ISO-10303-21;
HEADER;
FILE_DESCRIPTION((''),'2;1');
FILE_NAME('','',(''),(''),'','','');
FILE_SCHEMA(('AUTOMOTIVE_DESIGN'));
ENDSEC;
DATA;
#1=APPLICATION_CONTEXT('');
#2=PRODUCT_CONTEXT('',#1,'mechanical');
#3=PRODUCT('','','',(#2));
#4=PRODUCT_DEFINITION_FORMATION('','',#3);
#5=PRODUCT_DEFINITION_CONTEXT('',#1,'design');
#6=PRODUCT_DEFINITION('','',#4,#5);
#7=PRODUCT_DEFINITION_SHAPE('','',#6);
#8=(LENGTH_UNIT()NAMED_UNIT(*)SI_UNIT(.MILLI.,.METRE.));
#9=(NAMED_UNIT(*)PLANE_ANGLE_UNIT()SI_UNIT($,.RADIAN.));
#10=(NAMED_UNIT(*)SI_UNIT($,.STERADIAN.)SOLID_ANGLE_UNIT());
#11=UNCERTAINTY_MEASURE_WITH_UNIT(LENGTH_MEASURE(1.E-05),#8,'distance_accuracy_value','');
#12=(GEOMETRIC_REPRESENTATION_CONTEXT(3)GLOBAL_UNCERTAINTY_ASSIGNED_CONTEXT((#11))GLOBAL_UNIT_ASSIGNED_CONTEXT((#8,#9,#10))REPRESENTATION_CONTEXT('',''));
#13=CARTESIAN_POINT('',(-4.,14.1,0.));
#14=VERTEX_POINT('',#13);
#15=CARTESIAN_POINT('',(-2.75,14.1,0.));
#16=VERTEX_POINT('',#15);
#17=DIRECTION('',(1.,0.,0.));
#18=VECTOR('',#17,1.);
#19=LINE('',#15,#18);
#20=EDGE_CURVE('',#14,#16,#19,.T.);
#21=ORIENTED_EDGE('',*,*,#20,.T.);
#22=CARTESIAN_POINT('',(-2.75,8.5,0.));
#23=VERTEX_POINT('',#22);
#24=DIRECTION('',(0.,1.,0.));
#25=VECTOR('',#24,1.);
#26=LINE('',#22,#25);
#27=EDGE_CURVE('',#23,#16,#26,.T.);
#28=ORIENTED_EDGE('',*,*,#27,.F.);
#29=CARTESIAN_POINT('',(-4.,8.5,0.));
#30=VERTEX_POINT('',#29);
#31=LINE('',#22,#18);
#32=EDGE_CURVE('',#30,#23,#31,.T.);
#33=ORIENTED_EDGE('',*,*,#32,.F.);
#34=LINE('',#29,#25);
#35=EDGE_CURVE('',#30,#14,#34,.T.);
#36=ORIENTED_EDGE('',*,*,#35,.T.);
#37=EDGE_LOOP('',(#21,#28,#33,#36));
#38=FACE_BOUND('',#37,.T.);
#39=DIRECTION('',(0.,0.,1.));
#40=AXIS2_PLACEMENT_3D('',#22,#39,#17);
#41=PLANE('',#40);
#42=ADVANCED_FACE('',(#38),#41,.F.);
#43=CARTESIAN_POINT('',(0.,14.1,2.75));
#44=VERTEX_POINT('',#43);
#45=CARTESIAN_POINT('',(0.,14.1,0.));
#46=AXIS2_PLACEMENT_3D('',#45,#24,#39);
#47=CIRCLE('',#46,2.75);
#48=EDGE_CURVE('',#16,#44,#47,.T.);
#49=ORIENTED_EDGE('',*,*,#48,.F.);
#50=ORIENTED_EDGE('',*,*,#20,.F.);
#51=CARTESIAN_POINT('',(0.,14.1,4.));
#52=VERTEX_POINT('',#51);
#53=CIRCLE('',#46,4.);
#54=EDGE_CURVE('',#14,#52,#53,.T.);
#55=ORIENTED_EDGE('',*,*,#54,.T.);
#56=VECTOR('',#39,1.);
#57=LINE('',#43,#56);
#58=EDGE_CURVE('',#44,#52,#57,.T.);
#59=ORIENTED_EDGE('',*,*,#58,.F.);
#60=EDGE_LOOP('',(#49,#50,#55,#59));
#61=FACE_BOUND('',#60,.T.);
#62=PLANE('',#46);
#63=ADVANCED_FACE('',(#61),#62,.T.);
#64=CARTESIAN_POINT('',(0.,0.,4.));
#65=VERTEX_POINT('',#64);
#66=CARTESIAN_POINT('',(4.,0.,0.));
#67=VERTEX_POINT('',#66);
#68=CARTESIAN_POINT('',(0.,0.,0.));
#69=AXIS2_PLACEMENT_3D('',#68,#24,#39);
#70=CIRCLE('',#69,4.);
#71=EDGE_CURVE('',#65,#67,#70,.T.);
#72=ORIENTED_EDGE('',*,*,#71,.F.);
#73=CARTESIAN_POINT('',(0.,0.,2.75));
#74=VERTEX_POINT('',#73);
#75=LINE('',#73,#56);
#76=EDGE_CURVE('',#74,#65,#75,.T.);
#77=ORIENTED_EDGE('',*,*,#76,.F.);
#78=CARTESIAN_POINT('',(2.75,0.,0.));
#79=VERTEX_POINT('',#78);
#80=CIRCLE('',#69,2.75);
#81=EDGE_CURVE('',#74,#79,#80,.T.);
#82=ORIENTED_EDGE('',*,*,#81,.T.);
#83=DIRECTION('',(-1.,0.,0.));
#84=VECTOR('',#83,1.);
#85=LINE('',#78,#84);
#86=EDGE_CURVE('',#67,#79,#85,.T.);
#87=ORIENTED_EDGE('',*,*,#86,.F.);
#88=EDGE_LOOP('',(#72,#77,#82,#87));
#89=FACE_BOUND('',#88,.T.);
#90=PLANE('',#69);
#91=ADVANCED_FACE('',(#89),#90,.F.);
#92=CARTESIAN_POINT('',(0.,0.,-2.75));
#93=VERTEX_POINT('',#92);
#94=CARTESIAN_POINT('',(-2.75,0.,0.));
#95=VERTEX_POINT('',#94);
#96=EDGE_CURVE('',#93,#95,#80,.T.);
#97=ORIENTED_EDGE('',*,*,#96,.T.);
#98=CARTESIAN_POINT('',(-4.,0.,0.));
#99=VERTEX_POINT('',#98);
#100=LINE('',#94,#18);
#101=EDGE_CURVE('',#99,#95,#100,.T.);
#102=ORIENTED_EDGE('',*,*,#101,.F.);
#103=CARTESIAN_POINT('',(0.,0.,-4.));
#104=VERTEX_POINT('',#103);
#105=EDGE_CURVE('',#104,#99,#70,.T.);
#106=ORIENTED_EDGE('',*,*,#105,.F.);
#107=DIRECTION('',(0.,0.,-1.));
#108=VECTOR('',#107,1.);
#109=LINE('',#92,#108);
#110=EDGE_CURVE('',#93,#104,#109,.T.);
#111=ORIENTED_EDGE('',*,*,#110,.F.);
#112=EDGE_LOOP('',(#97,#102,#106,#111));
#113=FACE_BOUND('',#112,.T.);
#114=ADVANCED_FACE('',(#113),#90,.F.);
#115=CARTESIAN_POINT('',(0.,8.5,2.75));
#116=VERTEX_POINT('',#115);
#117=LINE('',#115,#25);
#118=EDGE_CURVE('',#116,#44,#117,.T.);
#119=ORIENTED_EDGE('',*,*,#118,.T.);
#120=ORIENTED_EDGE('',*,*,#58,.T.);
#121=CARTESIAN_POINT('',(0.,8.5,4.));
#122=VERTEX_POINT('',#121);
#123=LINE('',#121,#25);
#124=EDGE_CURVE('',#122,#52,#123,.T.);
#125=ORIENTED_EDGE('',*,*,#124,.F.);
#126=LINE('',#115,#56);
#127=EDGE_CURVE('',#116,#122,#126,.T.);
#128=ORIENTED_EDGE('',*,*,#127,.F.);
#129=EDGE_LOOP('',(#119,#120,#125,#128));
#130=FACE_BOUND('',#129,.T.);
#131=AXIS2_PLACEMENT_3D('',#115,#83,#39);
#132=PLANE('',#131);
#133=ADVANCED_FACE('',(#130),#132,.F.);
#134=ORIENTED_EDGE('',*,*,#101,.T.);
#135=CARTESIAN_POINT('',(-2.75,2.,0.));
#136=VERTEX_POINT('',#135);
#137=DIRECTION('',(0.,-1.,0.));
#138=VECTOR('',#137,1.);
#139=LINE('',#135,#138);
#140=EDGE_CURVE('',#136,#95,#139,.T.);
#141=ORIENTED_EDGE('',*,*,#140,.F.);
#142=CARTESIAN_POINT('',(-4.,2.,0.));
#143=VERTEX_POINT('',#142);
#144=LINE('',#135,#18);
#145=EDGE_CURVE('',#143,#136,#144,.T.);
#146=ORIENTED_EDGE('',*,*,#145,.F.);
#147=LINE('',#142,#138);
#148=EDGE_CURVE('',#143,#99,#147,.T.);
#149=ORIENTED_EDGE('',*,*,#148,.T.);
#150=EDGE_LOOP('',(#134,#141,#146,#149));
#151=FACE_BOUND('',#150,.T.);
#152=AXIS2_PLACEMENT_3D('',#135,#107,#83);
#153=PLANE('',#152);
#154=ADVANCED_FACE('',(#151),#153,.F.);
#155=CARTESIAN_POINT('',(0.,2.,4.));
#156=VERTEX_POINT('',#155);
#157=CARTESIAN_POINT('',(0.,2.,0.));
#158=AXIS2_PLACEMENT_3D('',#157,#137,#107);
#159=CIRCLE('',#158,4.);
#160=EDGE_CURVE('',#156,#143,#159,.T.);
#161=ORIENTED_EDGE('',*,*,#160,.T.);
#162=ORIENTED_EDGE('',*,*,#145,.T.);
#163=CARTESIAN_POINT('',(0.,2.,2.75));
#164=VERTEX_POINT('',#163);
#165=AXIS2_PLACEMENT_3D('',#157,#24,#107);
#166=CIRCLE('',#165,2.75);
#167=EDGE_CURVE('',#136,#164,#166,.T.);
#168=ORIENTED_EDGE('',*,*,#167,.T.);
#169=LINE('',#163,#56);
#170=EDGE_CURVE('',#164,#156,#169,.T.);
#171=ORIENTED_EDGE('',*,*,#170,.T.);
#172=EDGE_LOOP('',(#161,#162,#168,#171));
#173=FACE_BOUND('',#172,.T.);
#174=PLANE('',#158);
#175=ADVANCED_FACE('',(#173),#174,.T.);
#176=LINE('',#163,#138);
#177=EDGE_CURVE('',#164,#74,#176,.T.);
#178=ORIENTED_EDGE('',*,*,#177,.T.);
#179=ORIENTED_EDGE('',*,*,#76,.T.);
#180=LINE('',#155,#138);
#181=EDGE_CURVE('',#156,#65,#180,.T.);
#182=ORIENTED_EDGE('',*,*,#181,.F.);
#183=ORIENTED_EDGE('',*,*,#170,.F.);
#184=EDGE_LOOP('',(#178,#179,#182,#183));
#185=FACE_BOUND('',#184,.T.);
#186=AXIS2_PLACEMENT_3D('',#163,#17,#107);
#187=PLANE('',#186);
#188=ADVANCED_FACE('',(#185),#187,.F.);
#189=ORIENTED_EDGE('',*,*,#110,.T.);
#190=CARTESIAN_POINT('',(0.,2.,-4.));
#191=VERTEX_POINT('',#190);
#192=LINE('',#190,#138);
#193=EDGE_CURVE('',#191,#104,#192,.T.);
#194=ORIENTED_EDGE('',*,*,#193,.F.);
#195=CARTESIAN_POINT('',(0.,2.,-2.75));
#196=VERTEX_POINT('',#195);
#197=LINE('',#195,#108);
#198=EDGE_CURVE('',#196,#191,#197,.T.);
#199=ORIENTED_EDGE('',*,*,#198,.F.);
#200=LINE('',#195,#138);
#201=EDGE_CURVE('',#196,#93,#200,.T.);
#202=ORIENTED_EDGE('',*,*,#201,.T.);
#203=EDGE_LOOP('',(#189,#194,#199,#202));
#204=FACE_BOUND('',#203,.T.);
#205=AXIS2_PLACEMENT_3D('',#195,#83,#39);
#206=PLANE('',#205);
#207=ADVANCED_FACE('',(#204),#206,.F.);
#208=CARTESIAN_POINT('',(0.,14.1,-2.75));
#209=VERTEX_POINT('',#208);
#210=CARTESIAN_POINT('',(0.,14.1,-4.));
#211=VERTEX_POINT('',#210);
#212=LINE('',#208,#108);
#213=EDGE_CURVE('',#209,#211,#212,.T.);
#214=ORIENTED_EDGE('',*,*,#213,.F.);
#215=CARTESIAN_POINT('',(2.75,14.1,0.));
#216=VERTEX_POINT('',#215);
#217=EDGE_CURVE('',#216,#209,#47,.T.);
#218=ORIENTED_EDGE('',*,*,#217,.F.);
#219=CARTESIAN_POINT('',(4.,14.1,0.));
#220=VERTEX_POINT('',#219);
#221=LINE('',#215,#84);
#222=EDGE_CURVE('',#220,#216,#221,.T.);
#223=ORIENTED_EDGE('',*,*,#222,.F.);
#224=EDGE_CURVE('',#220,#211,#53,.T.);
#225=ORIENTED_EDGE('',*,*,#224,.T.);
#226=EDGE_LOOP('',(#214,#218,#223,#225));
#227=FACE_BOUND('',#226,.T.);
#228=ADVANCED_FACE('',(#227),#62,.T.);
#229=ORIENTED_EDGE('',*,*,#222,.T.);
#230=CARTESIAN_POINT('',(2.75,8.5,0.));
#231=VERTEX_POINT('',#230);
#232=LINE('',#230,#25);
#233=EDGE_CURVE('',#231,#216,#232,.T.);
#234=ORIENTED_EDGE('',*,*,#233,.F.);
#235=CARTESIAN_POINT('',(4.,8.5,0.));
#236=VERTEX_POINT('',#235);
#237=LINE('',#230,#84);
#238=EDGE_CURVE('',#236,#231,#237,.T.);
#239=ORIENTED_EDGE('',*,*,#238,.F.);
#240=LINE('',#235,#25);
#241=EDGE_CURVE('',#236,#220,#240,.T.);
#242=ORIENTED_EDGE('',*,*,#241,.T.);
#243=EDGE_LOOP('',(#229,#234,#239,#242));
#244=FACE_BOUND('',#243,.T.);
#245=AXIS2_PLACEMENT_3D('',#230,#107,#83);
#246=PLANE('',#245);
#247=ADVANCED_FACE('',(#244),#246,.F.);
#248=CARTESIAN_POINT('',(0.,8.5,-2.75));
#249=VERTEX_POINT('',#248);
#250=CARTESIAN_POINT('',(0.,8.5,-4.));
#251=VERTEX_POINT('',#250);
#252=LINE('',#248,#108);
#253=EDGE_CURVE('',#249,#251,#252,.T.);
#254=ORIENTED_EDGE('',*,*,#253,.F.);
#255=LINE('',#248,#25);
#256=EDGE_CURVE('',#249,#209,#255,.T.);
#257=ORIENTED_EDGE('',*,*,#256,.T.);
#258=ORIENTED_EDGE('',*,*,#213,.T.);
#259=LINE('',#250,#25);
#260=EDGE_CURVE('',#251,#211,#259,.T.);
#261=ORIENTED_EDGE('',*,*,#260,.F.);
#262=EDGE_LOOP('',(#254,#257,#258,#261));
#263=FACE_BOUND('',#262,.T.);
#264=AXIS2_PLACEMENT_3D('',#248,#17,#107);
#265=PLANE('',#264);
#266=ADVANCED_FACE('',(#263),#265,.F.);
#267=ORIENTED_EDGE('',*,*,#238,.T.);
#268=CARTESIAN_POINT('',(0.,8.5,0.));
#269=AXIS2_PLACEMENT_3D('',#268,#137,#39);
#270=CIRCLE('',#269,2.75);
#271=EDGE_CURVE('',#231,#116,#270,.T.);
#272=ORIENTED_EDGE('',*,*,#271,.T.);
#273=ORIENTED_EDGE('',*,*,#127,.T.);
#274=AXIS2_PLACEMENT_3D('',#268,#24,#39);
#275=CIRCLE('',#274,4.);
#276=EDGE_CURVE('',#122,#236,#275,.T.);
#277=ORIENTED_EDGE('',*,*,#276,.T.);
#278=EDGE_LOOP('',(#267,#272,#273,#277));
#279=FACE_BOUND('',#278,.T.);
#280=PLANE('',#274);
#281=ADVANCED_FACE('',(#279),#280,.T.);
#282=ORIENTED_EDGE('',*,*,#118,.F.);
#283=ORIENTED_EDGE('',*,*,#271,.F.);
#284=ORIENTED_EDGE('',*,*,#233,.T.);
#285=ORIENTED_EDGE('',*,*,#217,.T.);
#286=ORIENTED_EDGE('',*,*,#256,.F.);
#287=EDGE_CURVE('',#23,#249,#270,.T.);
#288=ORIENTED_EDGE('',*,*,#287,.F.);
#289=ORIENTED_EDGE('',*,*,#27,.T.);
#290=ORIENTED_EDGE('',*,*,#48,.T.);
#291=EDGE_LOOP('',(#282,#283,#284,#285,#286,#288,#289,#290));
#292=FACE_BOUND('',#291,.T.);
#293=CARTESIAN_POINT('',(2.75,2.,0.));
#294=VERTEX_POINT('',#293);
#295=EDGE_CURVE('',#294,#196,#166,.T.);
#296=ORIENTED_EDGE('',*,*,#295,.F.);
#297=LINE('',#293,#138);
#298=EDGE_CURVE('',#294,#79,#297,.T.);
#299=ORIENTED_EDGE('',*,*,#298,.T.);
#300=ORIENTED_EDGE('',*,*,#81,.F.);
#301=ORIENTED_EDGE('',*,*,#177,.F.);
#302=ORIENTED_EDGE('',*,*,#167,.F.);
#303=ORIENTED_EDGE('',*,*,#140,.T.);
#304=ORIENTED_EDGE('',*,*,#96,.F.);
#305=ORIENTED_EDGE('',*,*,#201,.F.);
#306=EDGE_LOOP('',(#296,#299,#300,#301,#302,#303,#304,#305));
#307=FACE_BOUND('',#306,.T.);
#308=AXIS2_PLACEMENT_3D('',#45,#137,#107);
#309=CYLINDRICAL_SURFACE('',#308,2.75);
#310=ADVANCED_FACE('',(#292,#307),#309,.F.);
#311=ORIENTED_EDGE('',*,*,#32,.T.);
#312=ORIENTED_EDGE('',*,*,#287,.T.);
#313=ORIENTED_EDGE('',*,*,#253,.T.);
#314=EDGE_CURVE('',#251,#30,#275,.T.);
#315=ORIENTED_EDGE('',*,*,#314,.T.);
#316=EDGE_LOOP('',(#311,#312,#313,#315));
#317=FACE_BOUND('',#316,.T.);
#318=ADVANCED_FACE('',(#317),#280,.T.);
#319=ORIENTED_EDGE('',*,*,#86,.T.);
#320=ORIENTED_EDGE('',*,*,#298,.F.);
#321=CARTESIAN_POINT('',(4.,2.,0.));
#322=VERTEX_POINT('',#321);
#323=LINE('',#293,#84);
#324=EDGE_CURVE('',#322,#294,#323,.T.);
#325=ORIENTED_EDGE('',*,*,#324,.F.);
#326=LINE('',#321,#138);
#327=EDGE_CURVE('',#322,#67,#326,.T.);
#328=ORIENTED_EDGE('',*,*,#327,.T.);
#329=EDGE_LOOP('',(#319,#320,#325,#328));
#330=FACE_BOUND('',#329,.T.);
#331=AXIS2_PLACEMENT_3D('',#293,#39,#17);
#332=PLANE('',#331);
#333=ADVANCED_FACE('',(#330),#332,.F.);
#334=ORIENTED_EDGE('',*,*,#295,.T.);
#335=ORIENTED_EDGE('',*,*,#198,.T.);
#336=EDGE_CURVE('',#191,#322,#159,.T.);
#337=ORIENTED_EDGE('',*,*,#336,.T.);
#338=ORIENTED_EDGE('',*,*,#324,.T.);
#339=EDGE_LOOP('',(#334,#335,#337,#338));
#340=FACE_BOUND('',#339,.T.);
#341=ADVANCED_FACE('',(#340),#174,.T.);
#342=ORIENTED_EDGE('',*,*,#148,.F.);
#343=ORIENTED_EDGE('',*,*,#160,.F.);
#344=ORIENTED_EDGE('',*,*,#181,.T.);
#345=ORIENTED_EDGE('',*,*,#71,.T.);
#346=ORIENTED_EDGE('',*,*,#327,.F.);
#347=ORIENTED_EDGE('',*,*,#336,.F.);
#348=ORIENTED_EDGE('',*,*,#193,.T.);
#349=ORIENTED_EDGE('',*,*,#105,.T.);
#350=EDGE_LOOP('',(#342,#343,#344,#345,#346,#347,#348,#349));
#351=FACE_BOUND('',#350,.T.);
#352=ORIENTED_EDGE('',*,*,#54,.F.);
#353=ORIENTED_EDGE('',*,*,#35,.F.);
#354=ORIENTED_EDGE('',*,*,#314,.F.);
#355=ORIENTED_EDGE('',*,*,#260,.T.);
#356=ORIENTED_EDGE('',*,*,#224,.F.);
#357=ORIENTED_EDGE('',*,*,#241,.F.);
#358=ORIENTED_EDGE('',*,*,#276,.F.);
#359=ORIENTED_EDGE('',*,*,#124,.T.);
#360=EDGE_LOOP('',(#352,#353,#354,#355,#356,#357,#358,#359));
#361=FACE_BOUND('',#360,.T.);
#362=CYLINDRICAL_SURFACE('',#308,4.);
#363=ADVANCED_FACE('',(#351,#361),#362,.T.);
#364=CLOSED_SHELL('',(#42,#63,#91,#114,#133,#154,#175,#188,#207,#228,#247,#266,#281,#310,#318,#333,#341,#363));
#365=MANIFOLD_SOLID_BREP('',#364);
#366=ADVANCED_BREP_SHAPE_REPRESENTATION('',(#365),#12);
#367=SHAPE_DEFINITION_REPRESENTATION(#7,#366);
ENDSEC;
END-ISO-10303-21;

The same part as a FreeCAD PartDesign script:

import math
import FreeCAD as App
import Part
import Sketcher

V = App.Vector

doc = App.newDocument("Part")
body = doc.addObject("PartDesign::Body", "Body")

sketch1 = doc.addObject("Sketcher::SketchObject", "Sketch")
body.addObject(sketch1)
sketch1.AttachmentSupport = (doc.XZ_Plane, [""])
sketch1.MapMode = "FlatFace"
sketch1.addGeometry([
    Part.Circle(V(0, 0, 0), V(0, 0, 1), 4),
    Part.Circle(V(0, 0, 0), V(0, 0, 1), 2.8),
], False)
sketch1.addConstraint([
    Sketcher.Constraint("Coincident", 0, 3, -1, 1),
    Sketcher.Constraint("Coincident", 1, 3, -1, 1),
    Sketcher.Constraint("Diameter", 0, 8.0),
    Sketcher.Constraint("Diameter", 1, 5.5),
])
pad1 = doc.addObject("PartDesign::Pad", "Pad")
body.addObject(pad1)
pad1.Profile = sketch1
pad1.Length = 14.1
pad1.Reversed = True

sketch2 = doc.addObject("Sketcher::SketchObject", "Sketch001")
body.addObject(sketch2)
sketch2.AttachmentSupport = (doc.XZ_Plane, [""])
sketch2.MapMode = "FlatFace"
sketch2.AttachmentOffset = App.Placement(V(0, 0, -14.1), App.Rotation())
sketch2.addGeometry([
    Part.LineSegment(V(0, -2.8, 0), V(0, -4, 0)),
    Part.ArcOfCircle(Part.Circle(V(0, 0, 0), V(0, 0, 1), 4), math.radians(180), math.radians(270)),
    Part.LineSegment(V(-4, 0, 0), V(-2.8, 0, 0)),
    Part.ArcOfCircle(Part.Circle(V(0, 0, 0), V(0, 0, 1), 2.8), math.radians(-180), math.radians(-90)),
    Part.LineSegment(V(4, 0, 0), V(2.8, 0, 0)),
    Part.ArcOfCircle(Part.Circle(V(0, 0, 0), V(0, 0, 1), 2.8), math.radians(0), math.radians(90)),
    Part.LineSegment(V(0, 2.8, 0), V(0, 4, 0)),
    Part.ArcOfCircle(Part.Circle(V(0, 0, 0), V(0, 0, 1), 4), math.radians(0), math.radians(90)),
], False)
sketch2.addConstraint([
    Sketcher.Constraint("Coincident", 0, 2, 1, 2),
    Sketcher.Constraint("Coincident", 1, 1, 2, 1),
    Sketcher.Constraint("Coincident", 2, 2, 3, 1),
    Sketcher.Constraint("Coincident", 3, 2, 0, 1),
    Sketcher.Constraint("Coincident", 4, 2, 5, 1),
    Sketcher.Constraint("Coincident", 5, 2, 6, 1),
    Sketcher.Constraint("Coincident", 6, 2, 7, 2),
    Sketcher.Constraint("Coincident", 7, 1, 4, 1),
    Sketcher.Constraint("Vertical", 0),
    Sketcher.Constraint("Horizontal", 2),
    Sketcher.Constraint("Horizontal", 4),
    Sketcher.Constraint("Vertical", 6),
    Sketcher.Constraint("Coincident", 1, 3, -1, 1),
    Sketcher.Constraint("Coincident", 3, 3, -1, 1),
    Sketcher.Constraint("Coincident", 5, 3, -1, 1),
    Sketcher.Constraint("Coincident", 7, 3, -1, 1),
    Sketcher.Constraint("Equal", 3, 5),
    Sketcher.Constraint("Equal", 1, 7),
    Sketcher.Constraint("PointOnObject", 0, 2, -2),
    Sketcher.Constraint("PointOnObject", 1, 1, -1),
    Sketcher.Constraint("PointOnObject", 4, 2, -1),
    Sketcher.Constraint("PointOnObject", 5, 2, -2),
    Sketcher.Constraint("Radius", 1, 4.0),
    Sketcher.Constraint("Radius", 3, 2.75),
])
pocket1 = doc.addObject("PartDesign::Pocket", "Pocket")
body.addObject(pocket1)
pocket1.Profile = sketch2
pocket1.Length = 5.6
pocket1.Reversed = True

sketch3 = doc.addObject("Sketcher::SketchObject", "Sketch002")
body.addObject(sketch3)
sketch3.AttachmentSupport = (doc.XZ_Plane, [""])
sketch3.MapMode = "FlatFace"
sketch3.addGeometry([
    Part.LineSegment(V(0, 2.8, 0), V(0, 4, 0)),
    Part.ArcOfCircle(Part.Circle(V(0, 0, 0), V(0, 0, 1), 4), math.radians(90), math.radians(180)),
    Part.LineSegment(V(-4, 0, 0), V(-2.8, 0, 0)),
    Part.ArcOfCircle(Part.Circle(V(0, 0, 0), V(0, 0, 1), 2.8), math.radians(90), math.radians(180)),
    Part.LineSegment(V(4, 0, 0), V(2.8, 0, 0)),
    Part.ArcOfCircle(Part.Circle(V(0, 0, 0), V(0, 0, 1), 2.8), math.radians(-90), math.radians(0)),
    Part.LineSegment(V(0, -2.8, 0), V(0, -4, 0)),
    Part.ArcOfCircle(Part.Circle(V(0, 0, 0), V(0, 0, 1), 4), math.radians(-90), math.radians(0)),
], False)
sketch3.addConstraint([
    Sketcher.Constraint("Coincident", 0, 2, 1, 1),
    Sketcher.Constraint("Coincident", 1, 2, 2, 1),
    Sketcher.Constraint("Coincident", 2, 2, 3, 2),
    Sketcher.Constraint("Coincident", 3, 1, 0, 1),
    Sketcher.Constraint("Coincident", 4, 2, 5, 2),
    Sketcher.Constraint("Coincident", 5, 1, 6, 1),
    Sketcher.Constraint("Coincident", 6, 2, 7, 1),
    Sketcher.Constraint("Coincident", 7, 2, 4, 1),
    Sketcher.Constraint("Vertical", 0),
    Sketcher.Constraint("Horizontal", 2),
    Sketcher.Constraint("Horizontal", 4),
    Sketcher.Constraint("Vertical", 6),
    Sketcher.Constraint("Coincident", 1, 3, -1, 1),
    Sketcher.Constraint("Coincident", 3, 3, -1, 1),
    Sketcher.Constraint("Coincident", 5, 3, -1, 1),
    Sketcher.Constraint("Coincident", 7, 3, -1, 1),
    Sketcher.Constraint("Equal", 3, 5),
    Sketcher.Constraint("Equal", 1, 7),
    Sketcher.Constraint("PointOnObject", 0, 2, -2),
    Sketcher.Constraint("PointOnObject", 1, 2, -1),
    Sketcher.Constraint("PointOnObject", 4, 2, -1),
    Sketcher.Constraint("PointOnObject", 5, 1, -2),
    Sketcher.Constraint("Radius", 1, 4.0),
    Sketcher.Constraint("Radius", 3, 2.75),
])
pocket2 = doc.addObject("PartDesign::Pocket", "Pocket001")
body.addObject(pocket2)
pocket2.Profile = sketch3
pocket2.Length = 2

doc.recompute()
